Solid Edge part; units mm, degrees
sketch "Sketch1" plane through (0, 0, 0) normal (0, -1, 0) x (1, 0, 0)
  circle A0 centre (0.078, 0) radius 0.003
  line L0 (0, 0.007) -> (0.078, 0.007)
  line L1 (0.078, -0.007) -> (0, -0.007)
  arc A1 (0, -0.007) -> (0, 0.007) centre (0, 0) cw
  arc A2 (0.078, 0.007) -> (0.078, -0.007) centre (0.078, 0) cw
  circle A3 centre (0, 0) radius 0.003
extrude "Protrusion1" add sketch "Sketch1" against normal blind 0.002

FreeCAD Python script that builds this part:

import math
import FreeCAD as App
import Part
import Sketcher
from FreeCAD import Vector
Q = App.Units.Quantity

doc = App.newDocument("Part")
body = doc.addObject("PartDesign::Body", "Body")

# Sketch on XZ plane
sketch1 = doc.addObject("Sketcher::SketchObject", "Sketch")
body.addObject(sketch1)
sketch1.AttachmentSupport = (doc.XZ_Plane, [""])
sketch1.MapMode = "FlatFace"
sketch1.addGeometry(Part.LineSegment(Vector(0.078, 0.007, 0), Vector(0, 0.007, 0)), False)
sketch1.addGeometry(Part.ArcOfCircle(Part.Circle(Vector(0, 0, 0), Vector(0, 0, 1), 0.007), math.radians(90), math.radians(270)), False)
sketch1.addGeometry(Part.LineSegment(Vector(0, -0.007, 0), Vector(0.078, -0.007, 0)), False)
sketch1.addGeometry(Part.ArcOfCircle(Part.Circle(Vector(0.078, 0, 0), Vector(0, 0, 1), 0.007), math.radians(-90), math.radians(90)), False)
sketch1.addGeometry(Part.Circle(Vector(0, 0, 0), Vector(0, 0, 1), 0.003), False)
sketch1.addGeometry(Part.Circle(Vector(0.078, 0, 0), Vector(0, 0, 1), 0.003), False)
sketch1.addConstraint(Sketcher.Constraint("Tangent", 0, 2, 1, 1))
sketch1.addConstraint(Sketcher.Constraint("Tangent", 1, 2, 2, 1))
sketch1.addConstraint(Sketcher.Constraint("Tangent", 2, 2, 3, 1))
sketch1.addConstraint(Sketcher.Constraint("Tangent", 3, 2, 0, 1))
sketch1.addConstraint(Sketcher.Constraint("Horizontal", 0))
sketch1.addConstraint(Sketcher.Constraint("Horizontal", 2))
sketch1.addConstraint(Sketcher.Constraint("Coincident", 1, 3, -1, 1))
sketch1.addConstraint(Sketcher.Constraint("Coincident", 4, 3, -1, 1))
sketch1.addConstraint(Sketcher.Constraint("Coincident", 5, 3, 3, 3))
sketch1.addConstraint(Sketcher.Constraint("Equal", 4, 5))
sketch1.addConstraint(Sketcher.Constraint("Diameter", 4, Q("0.006 mm")))
sketch1.addConstraint(Sketcher.Constraint("Radius", 1, Q("0.007 mm")))
sketch1.addConstraint(Sketcher.Constraint("DistanceX", 0, 2, 0, 1, Q("0.078 mm")))
pad1 = doc.addObject("PartDesign::Pad", "Pad")
body.addObject(pad1)
pad1.Profile = sketch1
pad1.Length = 0.002
pad1.Reversed = True

doc.recompute()
